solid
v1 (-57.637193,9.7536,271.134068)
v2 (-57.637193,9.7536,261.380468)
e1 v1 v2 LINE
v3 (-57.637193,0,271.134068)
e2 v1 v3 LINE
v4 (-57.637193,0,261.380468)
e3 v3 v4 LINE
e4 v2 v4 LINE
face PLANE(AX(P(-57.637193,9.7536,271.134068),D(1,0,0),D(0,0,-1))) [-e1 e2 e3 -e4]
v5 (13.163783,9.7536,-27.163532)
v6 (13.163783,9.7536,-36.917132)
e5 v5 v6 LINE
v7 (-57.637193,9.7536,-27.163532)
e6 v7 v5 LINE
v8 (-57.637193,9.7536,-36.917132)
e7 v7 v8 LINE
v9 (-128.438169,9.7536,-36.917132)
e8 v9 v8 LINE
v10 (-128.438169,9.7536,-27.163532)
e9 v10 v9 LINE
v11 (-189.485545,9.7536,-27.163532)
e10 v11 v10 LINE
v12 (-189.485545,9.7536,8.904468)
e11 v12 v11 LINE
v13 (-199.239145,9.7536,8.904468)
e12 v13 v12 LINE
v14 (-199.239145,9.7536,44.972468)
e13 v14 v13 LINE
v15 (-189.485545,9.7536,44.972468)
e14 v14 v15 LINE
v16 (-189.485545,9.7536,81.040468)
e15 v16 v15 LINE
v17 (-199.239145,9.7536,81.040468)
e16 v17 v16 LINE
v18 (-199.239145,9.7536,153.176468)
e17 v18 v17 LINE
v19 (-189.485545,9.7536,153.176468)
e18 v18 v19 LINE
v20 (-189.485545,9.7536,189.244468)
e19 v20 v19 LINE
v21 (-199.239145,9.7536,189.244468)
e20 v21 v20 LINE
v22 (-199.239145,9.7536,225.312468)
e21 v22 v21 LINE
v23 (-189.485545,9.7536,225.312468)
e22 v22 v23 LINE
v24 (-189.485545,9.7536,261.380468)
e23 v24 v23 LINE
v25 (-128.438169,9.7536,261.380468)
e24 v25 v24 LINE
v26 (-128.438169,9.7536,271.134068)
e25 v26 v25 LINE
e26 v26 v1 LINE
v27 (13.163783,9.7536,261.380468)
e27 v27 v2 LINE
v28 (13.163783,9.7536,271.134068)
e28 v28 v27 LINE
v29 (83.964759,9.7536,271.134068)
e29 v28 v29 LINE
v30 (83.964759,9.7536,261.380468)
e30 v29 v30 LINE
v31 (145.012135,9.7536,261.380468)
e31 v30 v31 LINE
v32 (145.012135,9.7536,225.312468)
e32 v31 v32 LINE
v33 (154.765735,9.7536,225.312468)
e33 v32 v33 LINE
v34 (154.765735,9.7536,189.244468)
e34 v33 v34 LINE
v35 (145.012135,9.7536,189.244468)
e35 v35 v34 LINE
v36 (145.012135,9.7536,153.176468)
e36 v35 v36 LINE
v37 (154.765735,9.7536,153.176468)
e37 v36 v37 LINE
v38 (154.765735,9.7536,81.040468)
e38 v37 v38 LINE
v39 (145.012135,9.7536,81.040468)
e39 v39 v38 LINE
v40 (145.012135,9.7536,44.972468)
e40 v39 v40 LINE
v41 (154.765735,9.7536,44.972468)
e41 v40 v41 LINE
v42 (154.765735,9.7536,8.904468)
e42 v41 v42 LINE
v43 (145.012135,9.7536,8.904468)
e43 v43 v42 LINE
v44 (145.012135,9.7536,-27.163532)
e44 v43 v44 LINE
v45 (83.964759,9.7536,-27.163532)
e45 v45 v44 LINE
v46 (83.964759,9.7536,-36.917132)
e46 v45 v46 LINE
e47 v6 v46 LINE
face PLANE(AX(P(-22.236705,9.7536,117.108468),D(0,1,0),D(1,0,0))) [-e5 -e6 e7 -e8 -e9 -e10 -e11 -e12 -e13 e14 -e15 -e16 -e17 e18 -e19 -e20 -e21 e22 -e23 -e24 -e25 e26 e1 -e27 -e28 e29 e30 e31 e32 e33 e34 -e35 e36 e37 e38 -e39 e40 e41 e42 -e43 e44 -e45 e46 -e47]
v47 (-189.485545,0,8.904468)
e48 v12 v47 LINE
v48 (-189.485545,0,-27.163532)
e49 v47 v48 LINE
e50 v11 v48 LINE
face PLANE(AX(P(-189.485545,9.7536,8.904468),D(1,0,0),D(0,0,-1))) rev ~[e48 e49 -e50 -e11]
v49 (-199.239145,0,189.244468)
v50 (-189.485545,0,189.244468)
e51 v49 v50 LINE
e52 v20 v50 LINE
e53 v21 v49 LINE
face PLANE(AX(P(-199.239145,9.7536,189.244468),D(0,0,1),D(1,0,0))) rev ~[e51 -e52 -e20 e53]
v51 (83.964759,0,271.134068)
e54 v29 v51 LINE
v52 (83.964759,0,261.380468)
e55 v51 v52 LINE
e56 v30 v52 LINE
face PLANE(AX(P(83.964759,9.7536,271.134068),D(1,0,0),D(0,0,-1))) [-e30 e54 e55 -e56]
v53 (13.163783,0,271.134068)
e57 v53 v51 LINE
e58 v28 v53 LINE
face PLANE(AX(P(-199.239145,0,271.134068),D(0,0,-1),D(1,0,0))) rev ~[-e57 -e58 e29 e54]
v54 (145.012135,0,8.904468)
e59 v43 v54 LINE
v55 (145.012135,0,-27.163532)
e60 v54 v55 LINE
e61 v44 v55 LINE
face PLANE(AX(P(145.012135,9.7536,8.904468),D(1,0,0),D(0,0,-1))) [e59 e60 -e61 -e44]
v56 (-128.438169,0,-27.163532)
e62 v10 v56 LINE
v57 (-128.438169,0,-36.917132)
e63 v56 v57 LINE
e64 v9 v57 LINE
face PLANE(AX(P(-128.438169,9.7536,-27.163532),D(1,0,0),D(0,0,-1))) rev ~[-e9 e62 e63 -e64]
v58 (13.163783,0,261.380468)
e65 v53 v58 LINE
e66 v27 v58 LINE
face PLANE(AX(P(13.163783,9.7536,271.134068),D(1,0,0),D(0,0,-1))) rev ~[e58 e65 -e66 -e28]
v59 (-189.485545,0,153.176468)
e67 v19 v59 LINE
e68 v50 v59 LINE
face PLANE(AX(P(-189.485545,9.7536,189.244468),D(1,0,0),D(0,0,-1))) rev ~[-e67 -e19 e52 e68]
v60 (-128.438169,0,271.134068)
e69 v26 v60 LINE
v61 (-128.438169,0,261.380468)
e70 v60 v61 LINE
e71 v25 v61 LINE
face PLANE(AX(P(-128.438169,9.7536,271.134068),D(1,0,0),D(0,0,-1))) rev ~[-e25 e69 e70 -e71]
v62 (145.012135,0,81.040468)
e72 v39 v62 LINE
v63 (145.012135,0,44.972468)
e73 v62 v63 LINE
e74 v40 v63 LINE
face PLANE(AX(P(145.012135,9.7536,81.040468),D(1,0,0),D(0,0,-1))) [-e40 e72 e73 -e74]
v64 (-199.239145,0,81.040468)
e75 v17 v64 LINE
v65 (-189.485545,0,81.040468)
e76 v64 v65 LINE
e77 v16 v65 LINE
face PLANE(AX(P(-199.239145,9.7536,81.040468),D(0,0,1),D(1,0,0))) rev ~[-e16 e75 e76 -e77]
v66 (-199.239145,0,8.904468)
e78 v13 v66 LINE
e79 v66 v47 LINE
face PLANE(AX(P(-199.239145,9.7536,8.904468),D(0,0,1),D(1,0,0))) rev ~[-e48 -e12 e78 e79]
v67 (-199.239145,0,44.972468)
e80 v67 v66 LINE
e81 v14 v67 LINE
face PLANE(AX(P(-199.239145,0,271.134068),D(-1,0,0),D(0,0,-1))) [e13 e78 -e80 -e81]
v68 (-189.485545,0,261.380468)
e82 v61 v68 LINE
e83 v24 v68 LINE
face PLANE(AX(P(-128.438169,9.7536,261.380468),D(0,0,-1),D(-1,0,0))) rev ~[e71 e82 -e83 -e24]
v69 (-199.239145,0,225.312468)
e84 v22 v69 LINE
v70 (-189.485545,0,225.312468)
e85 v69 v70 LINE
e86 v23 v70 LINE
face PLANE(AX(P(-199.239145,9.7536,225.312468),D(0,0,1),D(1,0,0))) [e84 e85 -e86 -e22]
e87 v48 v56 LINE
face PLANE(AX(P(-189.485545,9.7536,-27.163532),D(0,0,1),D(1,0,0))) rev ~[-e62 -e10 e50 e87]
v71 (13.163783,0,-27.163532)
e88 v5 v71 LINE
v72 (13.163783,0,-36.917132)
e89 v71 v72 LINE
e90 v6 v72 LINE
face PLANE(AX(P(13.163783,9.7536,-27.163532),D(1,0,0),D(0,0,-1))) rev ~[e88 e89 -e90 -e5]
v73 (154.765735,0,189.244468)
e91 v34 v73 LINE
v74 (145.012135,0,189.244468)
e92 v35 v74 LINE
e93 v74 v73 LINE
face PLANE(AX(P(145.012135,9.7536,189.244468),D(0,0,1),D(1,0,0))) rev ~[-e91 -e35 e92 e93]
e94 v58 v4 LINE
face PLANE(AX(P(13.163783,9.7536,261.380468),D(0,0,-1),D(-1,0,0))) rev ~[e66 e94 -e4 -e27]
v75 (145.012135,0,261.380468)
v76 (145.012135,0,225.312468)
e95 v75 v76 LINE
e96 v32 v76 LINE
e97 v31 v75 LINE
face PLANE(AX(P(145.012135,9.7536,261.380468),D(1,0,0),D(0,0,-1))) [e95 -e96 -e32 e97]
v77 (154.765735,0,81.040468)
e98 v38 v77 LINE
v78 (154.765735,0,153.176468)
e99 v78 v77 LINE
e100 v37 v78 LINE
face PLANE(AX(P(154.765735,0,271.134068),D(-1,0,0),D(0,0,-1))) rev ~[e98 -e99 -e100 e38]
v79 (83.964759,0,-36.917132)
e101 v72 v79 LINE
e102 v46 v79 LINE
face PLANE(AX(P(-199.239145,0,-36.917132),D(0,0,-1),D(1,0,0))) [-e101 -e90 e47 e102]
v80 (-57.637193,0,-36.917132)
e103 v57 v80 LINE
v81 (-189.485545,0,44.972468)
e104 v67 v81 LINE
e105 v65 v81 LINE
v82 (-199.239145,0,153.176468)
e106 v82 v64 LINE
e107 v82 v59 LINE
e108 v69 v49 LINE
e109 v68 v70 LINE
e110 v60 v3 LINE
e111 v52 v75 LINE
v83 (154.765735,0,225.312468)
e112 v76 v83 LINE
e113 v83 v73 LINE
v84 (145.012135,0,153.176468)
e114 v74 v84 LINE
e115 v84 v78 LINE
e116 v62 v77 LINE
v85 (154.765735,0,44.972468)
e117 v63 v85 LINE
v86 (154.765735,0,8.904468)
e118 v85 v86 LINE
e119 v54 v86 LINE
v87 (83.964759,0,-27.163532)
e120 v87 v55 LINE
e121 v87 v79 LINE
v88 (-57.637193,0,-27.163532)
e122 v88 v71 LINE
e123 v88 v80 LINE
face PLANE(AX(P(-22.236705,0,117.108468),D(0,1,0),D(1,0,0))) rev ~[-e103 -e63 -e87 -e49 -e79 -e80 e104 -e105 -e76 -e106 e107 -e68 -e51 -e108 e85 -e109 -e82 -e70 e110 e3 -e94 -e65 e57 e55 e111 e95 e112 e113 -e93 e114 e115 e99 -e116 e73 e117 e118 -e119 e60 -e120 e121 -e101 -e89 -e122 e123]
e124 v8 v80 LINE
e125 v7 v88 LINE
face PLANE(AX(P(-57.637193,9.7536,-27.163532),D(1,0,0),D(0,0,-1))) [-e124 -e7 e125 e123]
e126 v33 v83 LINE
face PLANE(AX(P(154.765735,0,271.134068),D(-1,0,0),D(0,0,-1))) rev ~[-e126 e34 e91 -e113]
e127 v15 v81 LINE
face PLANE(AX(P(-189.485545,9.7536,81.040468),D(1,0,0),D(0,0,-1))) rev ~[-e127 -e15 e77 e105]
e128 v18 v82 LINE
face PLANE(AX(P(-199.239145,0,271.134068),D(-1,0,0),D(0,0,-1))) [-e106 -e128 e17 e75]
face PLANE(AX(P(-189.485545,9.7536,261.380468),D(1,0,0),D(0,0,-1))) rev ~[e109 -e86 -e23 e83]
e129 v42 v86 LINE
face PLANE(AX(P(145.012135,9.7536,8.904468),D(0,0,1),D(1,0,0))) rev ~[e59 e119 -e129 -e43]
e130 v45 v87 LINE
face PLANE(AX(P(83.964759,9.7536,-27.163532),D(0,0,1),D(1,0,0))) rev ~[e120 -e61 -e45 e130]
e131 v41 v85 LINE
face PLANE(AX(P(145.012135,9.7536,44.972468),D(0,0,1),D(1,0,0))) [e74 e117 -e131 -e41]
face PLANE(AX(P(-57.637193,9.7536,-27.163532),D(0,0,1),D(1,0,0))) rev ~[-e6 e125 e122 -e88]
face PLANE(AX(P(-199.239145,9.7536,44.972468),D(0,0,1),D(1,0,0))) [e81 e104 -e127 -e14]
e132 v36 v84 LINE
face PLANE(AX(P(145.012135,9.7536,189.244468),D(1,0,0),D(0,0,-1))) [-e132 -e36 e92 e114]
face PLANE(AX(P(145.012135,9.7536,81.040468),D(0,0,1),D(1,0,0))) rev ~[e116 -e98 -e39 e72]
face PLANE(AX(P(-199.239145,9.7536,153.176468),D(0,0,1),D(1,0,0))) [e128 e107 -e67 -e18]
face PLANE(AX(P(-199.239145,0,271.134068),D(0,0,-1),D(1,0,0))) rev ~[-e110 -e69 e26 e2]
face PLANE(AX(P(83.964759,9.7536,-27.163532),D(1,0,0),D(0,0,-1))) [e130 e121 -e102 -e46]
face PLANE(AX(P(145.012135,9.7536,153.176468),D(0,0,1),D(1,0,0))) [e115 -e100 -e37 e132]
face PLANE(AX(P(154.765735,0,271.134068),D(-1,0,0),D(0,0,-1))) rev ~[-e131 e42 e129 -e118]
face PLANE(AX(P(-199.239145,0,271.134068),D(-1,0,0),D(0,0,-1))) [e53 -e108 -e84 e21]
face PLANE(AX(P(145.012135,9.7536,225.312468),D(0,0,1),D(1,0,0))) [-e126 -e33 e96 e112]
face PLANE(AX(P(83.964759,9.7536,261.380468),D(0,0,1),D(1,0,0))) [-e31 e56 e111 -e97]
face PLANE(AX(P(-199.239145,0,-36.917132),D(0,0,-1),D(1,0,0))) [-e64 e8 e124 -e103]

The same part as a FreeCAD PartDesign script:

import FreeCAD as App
import Part
import Sketcher
from FreeCAD import Vector
Q = App.Units.Quantity


def add_polygon(sketch, points):
    """Adds a closed chain of lines whose ends are joined by coincident constraints."""
    first, n = sketch.GeometryCount, len(points)
    for a, b in zip(points, points[1:] + points[:1]):
        sketch.addGeometry(Part.LineSegment(App.Vector(*a, 0), App.Vector(*b, 0)), False)
    for i in range(n):
        sketch.addConstraint(Sketcher.Constraint("Coincident", first + i, 2, first + (i + 1) % n, 1))

doc = App.newDocument("Part")
body = doc.addObject("PartDesign::Body", "Body")

# Sketch on XZ plane
sketch1 = doc.addObject("Sketcher::SketchObject", "Sketch")
body.addObject(sketch1)
sketch1.AttachmentSupport = (doc.XZ_Plane, [""])
sketch1.MapMode = "FlatFace"
add_polygon(sketch1, [(-199, -37), (-199, 271), (155, 271), (155, -37)])  # lines 0-3
sketch1.addConstraint(Sketcher.Constraint("Vertical", 0))
sketch1.addConstraint(Sketcher.Constraint("Horizontal", 1))
sketch1.addConstraint(Sketcher.Constraint("Vertical", 2))
sketch1.addConstraint(Sketcher.Constraint("Horizontal", 3))
sketch1.addConstraint(Sketcher.Constraint("DistanceY", 0, 1, 0, 2, Q("12.128 in")))
sketch1.addConstraint(Sketcher.Constraint("DistanceX", 1, 1, 1, 2, Q("13.9372 in")))
sketch1.addConstraint(Sketcher.Constraint("DistanceX", 0, 2, -1, 1, 199.239145))
sketch1.addConstraint(Sketcher.Constraint("DistanceY", -1, 1, 0, 2, 271.134068))
pad1 = doc.addObject("PartDesign::Pad", "Pad")
body.addObject(pad1)
pad1.Profile = sketch1
pad1.Length = Q("0.384 in")
pad1.Reversed = True

# Sketch on XZ plane
sketch2 = doc.addObject("Sketcher::SketchObject", "Sketch001")
body.addObject(sketch2)
sketch2.AttachmentSupport = (doc.XZ_Plane, [""])
sketch2.MapMode = "FlatFace"
sketch2.AttachmentOffset = App.Placement(Vector(0, 0, -0.384 * 25.4), App.Rotation())
add_polygon(sketch2, [(-199, 153), (-199, 189), (-189, 189), (-189, 153)])  # lines 0-3
add_polygon(sketch2, [(-199, 225), (-199, 271), (-128, 271), (-128, 261), (-189, 261), (-189, 225)])  # lines 4-9
add_polygon(sketch2, [(13, 271), (13, 261), (-58, 261), (-58, 271)])  # lines 10-13
add_polygon(sketch2, [(84, 261), (84, 271), (155, 271), (155, 225), (145, 225), (145, 261)])  # lines 14-19
add_polygon(sketch2, [(145, 153), (145, 189), (155, 189), (155, 153)])  # lines 20-23
add_polygon(sketch2, [(145, 45), (145, 81), (155, 81), (155, 45)])  # lines 24-27
add_polygon(sketch2, [(145, -27), (145, 9), (155, 9), (155, -37), (84, -37), (84, -27)])  # lines 28-33
add_polygon(sketch2, [(-58, -37), (-58, -27), (13, -27), (13, -37)])  # lines 34-37
add_polygon(sketch2, [(-199, 45), (-199, 81), (-189, 81), (-189, 45)])  # lines 38-41
add_polygon(sketch2, [(-199, 9), (-189, 9), (-189, -27), (-128, -27), (-128, -37), (-199, -37)])  # lines 42-47
sketch2.addConstraint(Sketcher.Constraint("Vertical", 0))
sketch2.addConstraint(Sketcher.Constraint("Horizontal", 1))
sketch2.addConstraint(Sketcher.Constraint("Vertical", 2))
sketch2.addConstraint(Sketcher.Constraint("Horizontal", 3))
sketch2.addConstraint(Sketcher.Constraint("Vertical", 4))
sketch2.addConstraint(Sketcher.Constraint("Horizontal", 5))
sketch2.addConstraint(Sketcher.Constraint("Vertical", 6))
sketch2.addConstraint(Sketcher.Constraint("Horizontal", 7))
sketch2.addConstraint(Sketcher.Constraint("Vertical", 8))
sketch2.addConstraint(Sketcher.Constraint("Horizontal", 9))
sketch2.addConstraint(Sketcher.Constraint("Vertical", 10))
sketch2.addConstraint(Sketcher.Constraint("Horizontal", 11))
sketch2.addConstraint(Sketcher.Constraint("Vertical", 12))
sketch2.addConstraint(Sketcher.Constraint("Horizontal", 13))
sketch2.addConstraint(Sketcher.Constraint("Vertical", 14))
sketch2.addConstraint(Sketcher.Constraint("Horizontal", 15))
sketch2.addConstraint(Sketcher.Constraint("Vertical", 16))
sketch2.addConstraint(Sketcher.Constraint("Horizontal", 17))
sketch2.addConstraint(Sketcher.Constraint("Vertical", 18))
sketch2.addConstraint(Sketcher.Constraint("Horizontal", 19))
sketch2.addConstraint(Sketcher.Constraint("Vertical", 20))
sketch2.addConstraint(Sketcher.Constraint("Horizontal", 21))
sketch2.addConstraint(Sketcher.Constraint("Vertical", 22))
sketch2.addConstraint(Sketcher.Constraint("Horizontal", 23))
sketch2.addConstraint(Sketcher.Constraint("Vertical", 24))
sketch2.addConstraint(Sketcher.Constraint("Horizontal", 25))
sketch2.addConstraint(Sketcher.Constraint("Vertical", 26))
sketch2.addConstraint(Sketcher.Constraint("Horizontal", 27))
sketch2.addConstraint(Sketcher.Constraint("Vertical", 28))
sketch2.addConstraint(Sketcher.Constraint("Horizontal", 29))
sketch2.addConstraint(Sketcher.Constraint("Vertical", 30))
sketch2.addConstraint(Sketcher.Constraint("Horizontal", 31))
sketch2.addConstraint(Sketcher.Constraint("Vertical", 32))
sketch2.addConstraint(Sketcher.Constraint("Horizontal", 33))
sketch2.addConstraint(Sketcher.Constraint("Vertical", 34))
sketch2.addConstraint(Sketcher.Constraint("Horizontal", 35))
sketch2.addConstraint(Sketcher.Constraint("Vertical", 36))
sketch2.addConstraint(Sketcher.Constraint("Horizontal", 37))
sketch2.addConstraint(Sketcher.Constraint("Vertical", 38))
sketch2.addConstraint(Sketcher.Constraint("Horizontal", 39))
sketch2.addConstraint(Sketcher.Constraint("Vertical", 40))
sketch2.addConstraint(Sketcher.Constraint("Horizontal", 41))
sketch2.addConstraint(Sketcher.Constraint("Horizontal", 42))
sketch2.addConstraint(Sketcher.Constraint("Vertical", 43))
sketch2.addConstraint(Sketcher.Constraint("Horizontal", 44))
sketch2.addConstraint(Sketcher.Constraint("Vertical", 45))
sketch2.addConstraint(Sketcher.Constraint("Horizontal", 46))
sketch2.addConstraint(Sketcher.Constraint("Vertical", 47))
sketch2.addConstraint(Sketcher.Constraint("Horizontal", 7, 2, 10, 2))
sketch2.addConstraint(Sketcher.Constraint("Horizontal", 5, 2, 12, 2))
sketch2.addConstraint(Sketcher.Constraint("Horizontal", 13, 2, 14, 2))
sketch2.addConstraint(Sketcher.Constraint("Horizontal", 9, 2, 16, 2))
sketch2.addConstraint(Sketcher.Constraint("Horizontal", 11, 2, 18, 2))
sketch2.addConstraint(Sketcher.Constraint("Horizontal", 1, 2, 20, 2))
sketch2.addConstraint(Sketcher.Constraint("Horizontal", 3, 2, 22, 2))
sketch2.addConstraint(Sketcher.Constraint("Horizontal", 33, 2, 34, 2))
sketch2.addConstraint(Sketcher.Constraint("Horizontal", 31, 2, 36, 2))
sketch2.addConstraint(Sketcher.Constraint("Horizontal", 25, 2, 38, 2))
sketch2.addConstraint(Sketcher.Constraint("Horizontal", 27, 2, 40, 2))
sketch2.addConstraint(Sketcher.Constraint("Horizontal", 29, 2, 42, 2))
sketch2.addConstraint(Sketcher.Constraint("Horizontal", 35, 2, 43, 2))
sketch2.addConstraint(Sketcher.Constraint("Horizontal", 37, 2, 45, 2))
sketch2.addConstraint(Sketcher.Constraint("Vertical", 3, 2, 4, 2))
sketch2.addConstraint(Sketcher.Constraint("Vertical", 2, 2, 7, 2))
sketch2.addConstraint(Sketcher.Constraint("Vertical", 18, 2, 20, 2))
sketch2.addConstraint(Sketcher.Constraint("Vertical", 16, 2, 21, 2))
sketch2.addConstraint(Sketcher.Constraint("Vertical", 23, 2, 24, 2))
sketch2.addConstraint(Sketcher.Constraint("Vertical", 22, 2, 25, 2))
sketch2.addConstraint(Sketcher.Constraint("Vertical", 27, 2, 28, 2))
sketch2.addConstraint(Sketcher.Constraint("Vertical", 26, 2, 29, 2))
sketch2.addConstraint(Sketcher.Constraint("Vertical", 19, 2, 31, 2))
sketch2.addConstraint(Sketcher.Constraint("Vertical", 12, 2, 34, 2))
sketch2.addConstraint(Sketcher.Constraint("Vertical", 13, 2, 35, 2))
sketch2.addConstraint(Sketcher.Constraint("Vertical", 9, 2, 38, 2))
sketch2.addConstraint(Sketcher.Constraint("Vertical", 8, 2, 39, 2))
sketch2.addConstraint(Sketcher.Constraint("Vertical", 40, 2, 42, 2))
sketch2.addConstraint(Sketcher.Constraint("Vertical", 6, 2, 44, 2))
sketch2.addConstraint(Sketcher.Constraint("Vertical", 41, 2, 46, 2))
sketch2.addConstraint(Sketcher.Constraint("Equal", 5, 11))
sketch2.addConstraint(Sketcher.Constraint("Equal", 13, 15))
sketch2.addConstraint(Sketcher.Constraint("Equal", 9, 17))
sketch2.addConstraint(Sketcher.Constraint("Equal", 42, 6))
sketch2.addConstraint(Sketcher.Constraint("Equal", 2, 8))
sketch2.addConstraint(Sketcher.Constraint("Equal", 22, 24))
sketch2.addConstraint(Sketcher.Constraint("Equal", 26, 28))
sketch2.addConstraint(Sketcher.Constraint("Equal", 16, 30))
sketch2.addConstraint(Sketcher.Constraint("DistanceY", 0, 1, 0, 2, Q("1.42 in")))
sketch2.addConstraint(Sketcher.Constraint("DistanceX", 1, 1, 1, 2, Q("0.384 in")))
sketch2.addConstraint(Sketcher.Constraint("DistanceY", 1, 2, 6, 2, Q("2.84 in")))
sketch2.addConstraint(Sketcher.Constraint("DistanceY", 24, 2, 23, 2, Q("2.84 in")))
sketch2.addConstraint(Sketcher.Constraint("DistanceY", 28, 2, 27, 2, Q("1.42 in")))
sketch2.addConstraint(Sketcher.Constraint("DistanceX", 5, 1, 5, 2, 70.800976))
sketch2.addConstraint(Sketcher.Constraint("DistanceX", 5, 2, -1, 1, 128.438169))
sketch2.addConstraint(Sketcher.Constraint("DistanceX", -1, 1, 14, 2, 83.964759))
sketch2.addConstraint(Sketcher.Constraint("DistanceX", 7, 2, 10, 2, 202.649328))
sketch2.addConstraint(Sketcher.Constraint("DistanceY", -1, 1, 0, 2, 189.244468))
pocket1 = doc.addObject("PartDesign::Pocket", "Pocket")
body.addObject(pocket1)
pocket1.Profile = sketch2
pocket1.Type = "ThroughAll"
pocket1.Reversed = True

doc.recompute()
